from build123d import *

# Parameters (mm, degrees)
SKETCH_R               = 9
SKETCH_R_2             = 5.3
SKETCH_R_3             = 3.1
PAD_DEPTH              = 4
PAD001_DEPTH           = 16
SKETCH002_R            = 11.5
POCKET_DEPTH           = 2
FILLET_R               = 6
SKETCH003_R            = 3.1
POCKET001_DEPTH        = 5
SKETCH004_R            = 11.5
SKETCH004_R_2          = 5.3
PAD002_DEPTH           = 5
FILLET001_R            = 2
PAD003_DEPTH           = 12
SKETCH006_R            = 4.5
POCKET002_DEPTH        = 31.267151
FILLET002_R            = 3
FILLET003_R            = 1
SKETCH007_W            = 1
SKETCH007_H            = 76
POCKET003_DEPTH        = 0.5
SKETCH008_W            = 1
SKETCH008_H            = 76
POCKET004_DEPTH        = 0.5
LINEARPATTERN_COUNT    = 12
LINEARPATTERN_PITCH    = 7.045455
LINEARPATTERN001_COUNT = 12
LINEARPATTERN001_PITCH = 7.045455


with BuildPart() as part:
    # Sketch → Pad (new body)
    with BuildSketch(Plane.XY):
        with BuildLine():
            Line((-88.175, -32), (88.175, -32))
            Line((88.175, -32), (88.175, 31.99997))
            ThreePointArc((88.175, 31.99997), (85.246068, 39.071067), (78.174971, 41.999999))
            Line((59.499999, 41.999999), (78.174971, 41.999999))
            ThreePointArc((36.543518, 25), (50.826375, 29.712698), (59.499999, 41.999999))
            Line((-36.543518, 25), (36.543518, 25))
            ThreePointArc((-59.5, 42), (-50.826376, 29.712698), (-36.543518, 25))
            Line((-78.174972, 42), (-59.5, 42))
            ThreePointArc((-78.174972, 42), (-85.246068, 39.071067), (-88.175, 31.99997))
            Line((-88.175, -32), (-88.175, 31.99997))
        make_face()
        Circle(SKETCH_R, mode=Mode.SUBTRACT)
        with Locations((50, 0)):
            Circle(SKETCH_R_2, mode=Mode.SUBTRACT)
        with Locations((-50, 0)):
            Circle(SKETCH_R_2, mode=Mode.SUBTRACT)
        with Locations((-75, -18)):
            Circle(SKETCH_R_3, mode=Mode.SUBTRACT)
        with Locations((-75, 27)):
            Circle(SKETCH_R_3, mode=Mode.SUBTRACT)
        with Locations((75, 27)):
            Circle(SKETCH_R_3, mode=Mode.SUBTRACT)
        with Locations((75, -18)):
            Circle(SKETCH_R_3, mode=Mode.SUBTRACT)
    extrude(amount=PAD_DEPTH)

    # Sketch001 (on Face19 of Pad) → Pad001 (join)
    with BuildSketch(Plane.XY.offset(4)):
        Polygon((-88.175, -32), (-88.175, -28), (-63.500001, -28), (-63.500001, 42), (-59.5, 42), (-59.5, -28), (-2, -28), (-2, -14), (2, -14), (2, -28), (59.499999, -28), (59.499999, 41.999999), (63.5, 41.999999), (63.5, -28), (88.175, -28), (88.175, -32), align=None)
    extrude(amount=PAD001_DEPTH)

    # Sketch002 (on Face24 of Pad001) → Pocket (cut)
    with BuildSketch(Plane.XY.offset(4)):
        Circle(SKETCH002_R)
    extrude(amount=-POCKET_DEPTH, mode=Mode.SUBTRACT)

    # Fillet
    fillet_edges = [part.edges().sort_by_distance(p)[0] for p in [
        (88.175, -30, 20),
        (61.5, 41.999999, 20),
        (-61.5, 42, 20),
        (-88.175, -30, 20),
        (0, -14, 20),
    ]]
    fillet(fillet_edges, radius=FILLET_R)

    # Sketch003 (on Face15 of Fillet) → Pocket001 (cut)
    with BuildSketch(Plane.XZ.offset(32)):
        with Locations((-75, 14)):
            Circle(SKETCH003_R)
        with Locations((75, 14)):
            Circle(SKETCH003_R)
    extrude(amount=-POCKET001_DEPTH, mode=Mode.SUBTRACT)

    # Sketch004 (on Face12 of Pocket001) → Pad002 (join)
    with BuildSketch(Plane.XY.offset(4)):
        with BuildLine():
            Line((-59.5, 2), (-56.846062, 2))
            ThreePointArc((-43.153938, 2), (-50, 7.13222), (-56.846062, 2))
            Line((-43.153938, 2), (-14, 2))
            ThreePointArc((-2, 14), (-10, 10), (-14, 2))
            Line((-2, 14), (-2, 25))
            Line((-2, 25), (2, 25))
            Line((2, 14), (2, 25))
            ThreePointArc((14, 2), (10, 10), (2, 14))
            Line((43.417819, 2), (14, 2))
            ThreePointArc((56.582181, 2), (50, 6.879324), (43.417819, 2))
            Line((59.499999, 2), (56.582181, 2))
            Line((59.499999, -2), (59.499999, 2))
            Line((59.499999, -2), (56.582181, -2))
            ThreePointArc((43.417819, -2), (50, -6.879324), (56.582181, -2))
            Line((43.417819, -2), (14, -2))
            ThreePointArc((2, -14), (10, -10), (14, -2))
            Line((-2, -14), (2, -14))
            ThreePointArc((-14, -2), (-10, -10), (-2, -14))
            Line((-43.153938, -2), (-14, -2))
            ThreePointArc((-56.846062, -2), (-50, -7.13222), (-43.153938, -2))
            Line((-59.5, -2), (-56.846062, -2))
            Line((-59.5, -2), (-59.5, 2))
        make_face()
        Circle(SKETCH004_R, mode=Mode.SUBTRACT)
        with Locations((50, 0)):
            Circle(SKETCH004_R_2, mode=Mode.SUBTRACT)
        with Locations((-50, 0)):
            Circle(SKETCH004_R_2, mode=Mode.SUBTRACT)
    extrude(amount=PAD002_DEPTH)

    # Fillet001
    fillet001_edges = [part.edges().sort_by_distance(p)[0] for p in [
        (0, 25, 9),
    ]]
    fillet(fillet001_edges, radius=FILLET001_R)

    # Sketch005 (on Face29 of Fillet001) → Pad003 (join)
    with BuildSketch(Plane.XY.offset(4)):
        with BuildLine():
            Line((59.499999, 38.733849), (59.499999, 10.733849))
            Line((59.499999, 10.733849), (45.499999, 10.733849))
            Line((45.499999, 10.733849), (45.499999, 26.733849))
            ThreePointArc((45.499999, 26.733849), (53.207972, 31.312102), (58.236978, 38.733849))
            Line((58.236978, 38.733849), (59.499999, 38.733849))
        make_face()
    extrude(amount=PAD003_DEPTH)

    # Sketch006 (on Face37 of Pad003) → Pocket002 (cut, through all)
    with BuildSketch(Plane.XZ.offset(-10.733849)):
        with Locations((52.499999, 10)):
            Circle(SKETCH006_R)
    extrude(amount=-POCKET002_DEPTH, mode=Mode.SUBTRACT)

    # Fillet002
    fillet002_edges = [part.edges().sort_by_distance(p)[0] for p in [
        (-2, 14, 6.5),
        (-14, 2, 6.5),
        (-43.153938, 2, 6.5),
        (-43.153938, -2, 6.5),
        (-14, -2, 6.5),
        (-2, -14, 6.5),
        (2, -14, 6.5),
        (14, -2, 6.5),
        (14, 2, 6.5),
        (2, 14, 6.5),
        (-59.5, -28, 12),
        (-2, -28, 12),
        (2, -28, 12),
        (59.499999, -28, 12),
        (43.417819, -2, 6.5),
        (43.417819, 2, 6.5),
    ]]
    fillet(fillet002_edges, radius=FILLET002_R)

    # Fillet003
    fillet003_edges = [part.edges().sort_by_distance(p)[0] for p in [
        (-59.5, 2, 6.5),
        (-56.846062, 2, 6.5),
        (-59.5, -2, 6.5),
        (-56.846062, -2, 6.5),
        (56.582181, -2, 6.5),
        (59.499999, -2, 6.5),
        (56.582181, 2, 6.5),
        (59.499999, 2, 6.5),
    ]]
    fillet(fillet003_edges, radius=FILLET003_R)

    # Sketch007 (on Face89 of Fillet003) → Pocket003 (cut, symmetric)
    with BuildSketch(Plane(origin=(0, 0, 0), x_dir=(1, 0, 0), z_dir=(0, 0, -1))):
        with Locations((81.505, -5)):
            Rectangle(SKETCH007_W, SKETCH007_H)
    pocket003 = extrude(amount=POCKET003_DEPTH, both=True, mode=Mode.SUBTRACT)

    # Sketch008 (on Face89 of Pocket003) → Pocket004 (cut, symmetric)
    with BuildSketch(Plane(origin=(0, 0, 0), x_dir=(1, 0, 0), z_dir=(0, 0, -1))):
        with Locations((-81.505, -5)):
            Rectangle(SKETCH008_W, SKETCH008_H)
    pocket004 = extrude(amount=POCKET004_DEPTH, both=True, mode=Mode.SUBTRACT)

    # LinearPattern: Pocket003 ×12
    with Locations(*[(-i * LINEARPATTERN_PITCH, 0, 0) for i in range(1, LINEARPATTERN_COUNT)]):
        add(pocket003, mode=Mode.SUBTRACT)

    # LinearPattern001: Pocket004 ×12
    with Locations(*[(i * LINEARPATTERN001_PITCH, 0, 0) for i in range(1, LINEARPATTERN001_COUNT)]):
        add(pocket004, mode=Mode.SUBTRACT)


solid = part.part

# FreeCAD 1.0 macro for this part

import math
import FreeCAD as App
import Part
import Sketcher

V = App.Vector


def edges_at(feature, points):
    """Names of the edges that pass closest to the given points."""
    edges = feature.Shape.Edges
    near = lambda p: min(range(len(edges)), key=lambda i: edges[i].distToShape(Part.Vertex(*p))[0])
    return sorted({f"Edge{near(p) + 1}" for p in points})

doc = App.newDocument("Part")
body = doc.addObject("PartDesign::Body", "Body")

# Sketch on XY plane
sketch1 = doc.addObject("Sketcher::SketchObject", "Sketch")
body.addObject(sketch1)
sketch1.AttachmentSupport = (doc.XY_Plane, [""])
sketch1.MapMode = "FlatFace"
sketch1.addGeometry([
    Part.LineSegment(V(-88.2, -32, 0), V(88.2, -32, 0)),  # 0
    Part.LineSegment(V(88.2, -32, 0), V(88.2, 32, 0)),  # 1
    Part.ArcOfCircle(Part.Circle(V(78.2, 32, 0), V(0, 0, 1), 10), math.radians(0), math.radians(90)),  # 2
    Part.LineSegment(V(78.2, 42, 0), V(59.5, 42, 0)),  # 3
    Part.ArcOfCircle(Part.Circle(V(36.5, 49, 0), V(0, 0, 1), 24), math.radians(-90), math.radians(-17)),  # 4
    Part.LineSegment(V(36.5, 25, 0), V(-36.5, 25, 0)),  # 5
    Part.ArcOfCircle(Part.Circle(V(-36.5, 49, 0), V(0, 0, 1), 24), math.radians(-163), math.radians(-90)),  # 6
    Part.LineSegment(V(-59.5, 42, 0), V(-78.2, 42, 0)),  # 7
    Part.ArcOfCircle(Part.Circle(V(-78.2, 32, 0), V(0, 0, 1), 10), math.radians(90), math.radians(180)),  # 8
    Part.LineSegment(V(-88.2, 32, 0), V(-88.2, -32, 0)),  # 9
    Part.Circle(V(-75, -18, 0), V(0, 0, 1), 3.1),  # 10
    Part.Circle(V(-50, 0, 0), V(0, 0, 1), 5.3),  # 11
    Part.Circle(V(75, -18, 0), V(0, 0, 1), 3.1),  # 12
    Part.Circle(V(0, 0, 0), V(0, 0, 1), 9),  # 13
    Part.Circle(V(50, 0, 0), V(0, 0, 1), 5.3),  # 14
    Part.Circle(V(-75, 27, 0), V(0, 0, 1), 3.1),  # 15
    Part.Circle(V(75, 27, 0), V(0, 0, 1), 3.1),  # 16
], False)
sketch1.addConstraint([
    Sketcher.Constraint("Coincident", 0, 2, 1, 1),
    Sketcher.Constraint("Coincident", 1, 2, 2, 1),
    Sketcher.Constraint("Coincident", 2, 2, 3, 1),
    Sketcher.Constraint("Coincident", 3, 2, 4, 2),
    Sketcher.Constraint("Tangent", 4, 1, 5, 1),
    Sketcher.Constraint("Tangent", 5, 2, 6, 2),
    Sketcher.Constraint("Coincident", 6, 1, 7, 1),
    Sketcher.Constraint("Coincident", 7, 2, 8, 1),
    Sketcher.Constraint("Coincident", 8, 2, 9, 1),
    Sketcher.Constraint("Coincident", 9, 2, 0, 1),
    Sketcher.Constraint("Horizontal", 0),
    Sketcher.Constraint("Vertical", 1),
    Sketcher.Constraint("Horizontal", 3),
    Sketcher.Constraint("Horizontal", 5),
    Sketcher.Constraint("Horizontal", 7),
    Sketcher.Constraint("Vertical", 9),
    Sketcher.Constraint("Coincident", 13, 3, -1, 1),
    Sketcher.Constraint("Equal", 4, 6),
    Sketcher.Constraint("Equal", 2, 8),
    Sketcher.Constraint("Equal", 10, 12),
    Sketcher.Constraint("Equal", 11, 14),
    Sketcher.Constraint("Equal", 12, 15),
    Sketcher.Constraint("Equal", 15, 16),
    Sketcher.Constraint("Symmetric", 11, 3, 14, 3, -1, 1),
    Sketcher.Constraint("Symmetric", 2, 3, 8, 3, -2),
    Sketcher.Constraint("Symmetric", 10, 3, 12, 3, -2),
    Sketcher.Constraint("Symmetric", 15, 3, 16, 3, -2),
    Sketcher.Constraint("PointOnObject", 11, 3, -1),
    Sketcher.Constraint("Horizontal", 1, 2, 8, 2),
    Sketcher.Constraint("Vertical", 10, 3, 15, 3),
    Sketcher.Constraint("Equal", 3, 7),
    Sketcher.Constraint("Diameter", 13, 18.0),
    Sketcher.Constraint("Radius", 2, 9.999999),
    Sketcher.Constraint("Radius", 4, 24.0),
    Sketcher.Constraint("Diameter", 10, 6.2),
    Sketcher.Constraint("Diameter", 11, 10.6),
    Sketcher.Constraint("DistanceY", -1, 1, 2, 3, 32.0),
    Sketcher.Constraint("DistanceY", -1, 1, 4, 3, 49.0),
    Sketcher.Constraint("DistanceX", 10, 3, -1, 1, 75.0),
    Sketcher.Constraint("DistanceY", 10, 3, -1, 1, 18.0),
    Sketcher.Constraint("DistanceX", 11, 3, -1, 1, 50.0),
    Sketcher.Constraint("DistanceY", -1, 1, 15, 3, 27.0),
    Sketcher.Constraint("DistanceY", 0, 2, -1, 1, 32.0),
    Sketcher.Constraint("DistanceX", 0, 1, 0, 2, 176.35),
    Sketcher.Constraint("DistanceX", -1, 1, 3, 2, 59.499999),
    Sketcher.Constraint("DistanceX", 6, 1, -1, 1, 59.5),
    Sketcher.Constraint("DistanceX", 3, 2, 3, 1, 18.674972),
    Sketcher.Constraint("DistanceY", 1, 1, 1, 2, 63.99997),
])
pad1 = doc.addObject("PartDesign::Pad", "Pad")
body.addObject(pad1)
pad1.Profile = sketch1
pad1.Length = 4

# Sketch on XY plane
sketch2 = doc.addObject("Sketcher::SketchObject", "Sketch001")
body.addObject(sketch2)
sketch2.AttachmentSupport = (doc.XY_Plane, [""])
sketch2.MapMode = "FlatFace"
sketch2.AttachmentOffset = App.Placement(V(0, 0, 4), App.Rotation())
sketch2.addGeometry([
    Part.LineSegment(V(-88.2, -28, 0), V(-88.2, -32, 0)),  # 0
    Part.LineSegment(V(-88.2, -32, 0), V(88.2, -32, 0)),  # 1
    Part.LineSegment(V(88.2, -32, 0), V(88.2, -28, 0)),  # 2
    Part.LineSegment(V(88.2, -28, 0), V(63.5, -28, 0)),  # 3
    Part.LineSegment(V(63.5, -28, 0), V(63.5, 42, 0)),  # 4
    Part.LineSegment(V(63.5, 42, 0), V(59.5, 42, 0)),  # 5
    Part.LineSegment(V(59.5, 42, 0), V(59.5, -28, 0)),  # 6
    Part.LineSegment(V(59.5, -28, 0), V(2, -28, 0)),  # 7
    Part.LineSegment(V(2, -28, 0), V(2, -14, 0)),  # 8
    Part.LineSegment(V(2, -14, 0), V(-2, -14, 0)),  # 9
    Part.LineSegment(V(-2, -14, 0), V(-2, -28, 0)),  # 10
    Part.LineSegment(V(-2, -28, 0), V(-59.5, -28, 0)),  # 11
    Part.LineSegment(V(-59.5, -28, 0), V(-59.5, 42, 0)),  # 12
    Part.LineSegment(V(-59.5, 42, 0), V(-63.5, 42, 0)),  # 13
    Part.LineSegment(V(-63.5, 42, 0), V(-63.5, -28, 0)),  # 14
    Part.LineSegment(V(-63.5, -28, 0), V(-88.2, -28, 0)),  # 15
], False)
sketch2.addConstraint([
    Sketcher.Constraint("Coincident", 0, 2, 1, 1),
    Sketcher.Constraint("Coincident", 1, 2, 2, 1),
    Sketcher.Constraint("Coincident", 2, 2, 3, 1),
    Sketcher.Constraint("Coincident", 3, 2, 4, 1),
    Sketcher.Constraint("Coincident", 4, 2, 5, 1),
    Sketcher.Constraint("Coincident", 5, 2, 6, 1),
    Sketcher.Constraint("Coincident", 6, 2, 7, 1),
    Sketcher.Constraint("Coincident", 7, 2, 8, 1),
    Sketcher.Constraint("Coincident", 8, 2, 9, 1),
    Sketcher.Constraint("Coincident", 9, 2, 10, 1),
    Sketcher.Constraint("Coincident", 10, 2, 11, 1),
    Sketcher.Constraint("Coincident", 11, 2, 12, 1),
    Sketcher.Constraint("Coincident", 12, 2, 13, 1),
    Sketcher.Constraint("Coincident", 13, 2, 14, 1),
    Sketcher.Constraint("Coincident", 14, 2, 15, 1),
    Sketcher.Constraint("Coincident", 15, 2, 0, 1),
    Sketcher.Constraint("Vertical", 0),
    Sketcher.Constraint("Horizontal", 1),
    Sketcher.Constraint("Vertical", 2),
    Sketcher.Constraint("Horizontal", 3),
    Sketcher.Constraint("Vertical", 4),
    Sketcher.Constraint("Horizontal", 5),
    Sketcher.Constraint("Vertical", 6),
    Sketcher.Constraint("Horizontal", 7),
    Sketcher.Constraint("Vertical", 8),
    Sketcher.Constraint("Horizontal", 9),
    Sketcher.Constraint("Vertical", 10),
    Sketcher.Constraint("Horizontal", 11),
    Sketcher.Constraint("Vertical", 12),
    Sketcher.Constraint("Horizontal", 13),
    Sketcher.Constraint("Vertical", 14),
    Sketcher.Constraint("Horizontal", 15),
    Sketcher.Constraint("Symmetric", 7, 2, 10, 2, -2),
    Sketcher.Constraint("Symmetric", 5, 2, 12, 2, -2),
    Sketcher.Constraint("Symmetric", 3, 2, 14, 2, -2),
    Sketcher.Constraint("Horizontal", 3, 2, 6, 2),
    Sketcher.Constraint("Equal", 5, 9),
    Sketcher.Constraint("Equal", 3, 15),
    Sketcher.Constraint("Equal", 13, 0),
    Sketcher.Constraint("DistanceX", 5, 2, 5, 1, 4.000001),
    Sketcher.Constraint("DistanceY", 4, 1, 4, 2, 69.999999),
    Sketcher.Constraint("DistanceY", 8, 1, 8, 2, 14.0),
    Sketcher.Constraint("DistanceX", 7, 2, 7, 1, 57.499999),
    Sketcher.Constraint("DistanceY", 0, 2, -1, 1, 32.0),
    Sketcher.Constraint("DistanceX", 1, 1, 1, 2, 176.35),
])
pad2 = doc.addObject("PartDesign::Pad", "Pad001")
body.addObject(pad2)
pad2.Profile = sketch2
pad2.Length = 16

# Sketch on XY plane
sketch3 = doc.addObject("Sketcher::SketchObject", "Sketch002")
body.addObject(sketch3)
sketch3.AttachmentSupport = (doc.XY_Plane, [""])
sketch3.MapMode = "FlatFace"
sketch3.AttachmentOffset = App.Placement(V(0, 0, 4), App.Rotation())
sketch3.addGeometry(Part.Circle(V(0, 0, 0), V(0, 0, 1), 12), False)
sketch3.addConstraint([
    Sketcher.Constraint("Coincident", 0, 3, -1, 1),
    Sketcher.Constraint("Diameter", 0, 23.0),
])
pocket1 = doc.addObject("PartDesign::Pocket", "Pocket")
body.addObject(pocket1)
pocket1.Profile = sketch3
pocket1.Length = 2
doc.recompute()

fillet = doc.addObject("PartDesign::Fillet", "Fillet")
body.addObject(fillet)
fillet.Base = (pocket1, edges_at(pocket1, [
    (88.175, -30, 20),
    (61.5, 42, 20),
    (-61.5, 42, 20),
    (-88.175, -30, 20),
    (0, -14, 20),
]))
fillet.Radius = 6

# Sketch on XZ plane
sketch4 = doc.addObject("Sketcher::SketchObject", "Sketch003")
body.addObject(sketch4)
sketch4.AttachmentSupport = (doc.XZ_Plane, [""])
sketch4.MapMode = "FlatFace"
sketch4.AttachmentOffset = App.Placement(V(0, 0, 32), App.Rotation())
sketch4.addGeometry([
    Part.Circle(V(-75, 14, 0), V(0, 0, 1), 3.1),
    Part.Circle(V(75, 14, 0), V(0, 0, 1), 3.1),
], False)
sketch4.addConstraint([
    Sketcher.Constraint("Equal", 0, 1),
    Sketcher.Constraint("Symmetric", 0, 3, 1, 3, -2),
    Sketcher.Constraint("Diameter", 0, 6.2),
    Sketcher.Constraint("DistanceX", 0, 3, -1, 1, 75.0),
    Sketcher.Constraint("DistanceY", -1, 1, 0, 3, 14.0),
])
pocket2 = doc.addObject("PartDesign::Pocket", "Pocket001")
body.addObject(pocket2)
pocket2.Profile = sketch4
pocket2.Length = 5

# Sketch on XY plane
sketch5 = doc.addObject("Sketcher::SketchObject", "Sketch004")
body.addObject(sketch5)
sketch5.AttachmentSupport = (doc.XY_Plane, [""])
sketch5.MapMode = "FlatFace"
sketch5.AttachmentOffset = App.Placement(V(0, 0, 4), App.Rotation())
sketch5.addGeometry([
    Part.LineSegment(V(-56.8, 2, 0), V(-59.5, 2, 0)),  # 0
    Part.LineSegment(V(-59.5, 2, 0), V(-59.5, -2, 0)),  # 1
    Part.LineSegment(V(-59.5, -2, 0), V(-56.8, -2, 0)),  # 2
    Part.ArcOfCircle(Part.Circle(V(-50, 0, 0), V(0, 0, 1), 7.1), math.radians(-164), math.radians(-16)),  # 3
    Part.LineSegment(V(-43.2, -2, 0), V(-14, -2, 0)),  # 4
    Part.ArcOfCircle(Part.Circle(V(0, 0, 0), V(0, 0, 1), 14.1), math.radians(-172), math.radians(-98)),  # 5
    Part.LineSegment(V(-2, -14, 0), V(2, -14, 0)),  # 6
    Part.ArcOfCircle(Part.Circle(V(0, 0, 0), V(0, 0, 1), 14.1), math.radians(-82), math.radians(-8)),  # 7
    Part.LineSegment(V(14, -2, 0), V(43.4, -2, 0)),  # 8
    Part.ArcOfCircle(Part.Circle(V(50, 0, 0), V(0, 0, 1), 6.9), math.radians(-163), math.radians(-17)),  # 9
    Part.LineSegment(V(56.6, -2, 0), V(59.5, -2, 0)),  # 10
    Part.LineSegment(V(59.5, -2, 0), V(59.5, 2, 0)),  # 11
    Part.LineSegment(V(59.5, 2, 0), V(56.6, 2, 0)),  # 12
    Part.ArcOfCircle(Part.Circle(V(50, 0, 0), V(0, 0, 1), 6.9), math.radians(17), math.radians(163)),  # 13
    Part.LineSegment(V(43.4, 2, 0), V(14, 2, 0)),  # 14
    Part.ArcOfCircle(Part.Circle(V(0, 0, 0), V(0, 0, 1), 14.1), math.radians(8), math.radians(82)),  # 15
    Part.LineSegment(V(2, 14, 0), V(2, 25, 0)),  # 16
    Part.LineSegment(V(2, 25, 0), V(-2, 25, 0)),  # 17
    Part.LineSegment(V(-2, 25, 0), V(-2, 14, 0)),  # 18
    Part.ArcOfCircle(Part.Circle(V(0, 0, 0), V(0, 0, 1), 14.1), math.radians(98), math.radians(172)),  # 19
    Part.LineSegment(V(-14, 2, 0), V(-43.2, 2, 0)),  # 20
    Part.ArcOfCircle(Part.Circle(V(-50, 0, 0), V(0, 0, 1), 7.1), math.radians(16), math.radians(164)),  # 21
    Part.Circle(V(50, 0, 0), V(0, 0, 1), 5.3),  # 22
    Part.Circle(V(0, 0, 0), V(0, 0, 1), 11.5),  # 23
    Part.Circle(V(-50, 0, 0), V(0, 0, 1), 5.3),  # 24
], False)
sketch5.addConstraint([
    Sketcher.Constraint("Coincident", 0, 2, 1, 1),
    Sketcher.Constraint("Coincident", 1, 2, 2, 1),
    Sketcher.Constraint("Coincident", 2, 2, 3, 1),
    Sketcher.Constraint("Coincident", 3, 2, 4, 1),
    Sketcher.Constraint("Coincident", 4, 2, 5, 1),
    Sketcher.Constraint("Coincident", 5, 2, 6, 1),
    Sketcher.Constraint("Coincident", 6, 2, 7, 1),
    Sketcher.Constraint("Coincident", 7, 2, 8, 1),
    Sketcher.Constraint("Coincident", 8, 2, 9, 1),
    Sketcher.Constraint("Coincident", 9, 2, 10, 1),
    Sketcher.Constraint("Coincident", 10, 2, 11, 1),
    Sketcher.Constraint("Coincident", 11, 2, 12, 1),
    Sketcher.Constraint("Coincident", 12, 2, 13, 1),
    Sketcher.Constraint("Coincident", 13, 2, 14, 1),
    Sketcher.Constraint("Coincident", 14, 2, 15, 1),
    Sketcher.Constraint("Coincident", 15, 2, 16, 1),
    Sketcher.Constraint("Coincident", 16, 2, 17, 1),
    Sketcher.Constraint("Coincident", 17, 2, 18, 1),
    Sketcher.Constraint("Coincident", 18, 2, 19, 1),
    Sketcher.Constraint("Coincident", 19, 2, 20, 1),
    Sketcher.Constraint("Coincident", 20, 2, 21, 1),
    Sketcher.Constraint("Coincident", 21, 2, 0, 1),
    Sketcher.Constraint("Horizontal", 0),
    Sketcher.Constraint("Vertical", 1),
    Sketcher.Constraint("Horizontal", 2),
    Sketcher.Constraint("Horizontal", 4),
    Sketcher.Constraint("Horizontal", 6),
    Sketcher.Constraint("Horizontal", 8),
    Sketcher.Constraint("Horizontal", 10),
    Sketcher.Constraint("Vertical", 11),
    Sketcher.Constraint("Horizontal", 12),
    Sketcher.Constraint("Horizontal", 14),
    Sketcher.Constraint("Vertical", 16),
    Sketcher.Constraint("Horizontal", 17),
    Sketcher.Constraint("Vertical", 18),
    Sketcher.Constraint("Horizontal", 20),
    Sketcher.Constraint("Coincident", 5, 3, -1, 1),
    Sketcher.Constraint("Coincident", 7, 3, -1, 1),
    Sketcher.Constraint("Coincident", 15, 3, -1, 1),
    Sketcher.Constraint("Coincident", 19, 3, -1, 1),
    Sketcher.Constraint("Coincident", 23, 3, -1, 1),
    Sketcher.Constraint("Coincident", 13, 3, 9, 3),
    Sketcher.Constraint("Coincident", 21, 3, 3, 3),
    Sketcher.Constraint("Coincident", 22, 3, 9, 3),
    Sketcher.Constraint("Coincident", 24, 3, 3, 3),
    Sketcher.Constraint("Equal", 5, 7),
    Sketcher.Constraint("Equal", 9, 13),
    Sketcher.Constraint("Equal", 7, 15),
    Sketcher.Constraint("Equal", 15, 19),
    Sketcher.Constraint("Equal", 3, 21),
    Sketcher.Constraint("Equal", 22, 24),
    Sketcher.Constraint("Symmetric", 3, 3, 9, 3, -1, 1),
    Sketcher.Constraint("Symmetric", 0, 2, 10, 2, -1, 1),
    Sketcher.Constraint("Symmetric", 9, 2, 12, 2, -1),
    Sketcher.Constraint("Horizontal", 2, 2, 3, 2),
    Sketcher.Constraint("Horizontal", 4, 2, 7, 2),
    Sketcher.Constraint("Horizontal", 8, 2, 9, 2),
    Sketcher.Constraint("Horizontal", 12, 2, 13, 2),
    Sketcher.Constraint("Horizontal", 15, 2, 18, 2),
    Sketcher.Constraint("Horizontal", 14, 2, 19, 2),
    Sketcher.Constraint("Vertical", 6, 2, 15, 2),
    Sketcher.Constraint("Equal", 17, 1),
    Sketcher.Constraint("Diameter", 23, 23.0),
    Sketcher.Constraint("Diameter", 22, 10.6),
    Sketcher.Constraint("DistanceX", 6, 1, 6, 2, 4.0),
    Sketcher.Constraint("DistanceY", 16, 1, 16, 2, 11.0),
    Sketcher.Constraint("DistanceX", 3, 3, -1, 1, 50.0),
    Sketcher.Constraint("DistanceX", 4, 2, -1, 1, 14.0),
    Sketcher.Constraint("DistanceX", 0, 2, -1, 1, 59.5),
    Sketcher.Constraint("Radius", 3, 7.13222),
    Sketcher.Constraint("Radius", 9, 6.879325),
])
pad3 = doc.addObject("PartDesign::Pad", "Pad002")
body.addObject(pad3)
pad3.Profile = sketch5
pad3.Length = 5
doc.recompute()

fillet2 = doc.addObject("PartDesign::Fillet", "Fillet001")
body.addObject(fillet2)
fillet2.Base = (pad3, edges_at(pad3, [(0, 25, 9)]))
fillet2.Radius = 2

# Sketch on XY plane
sketch6 = doc.addObject("Sketcher::SketchObject", "Sketch005")
body.addObject(sketch6)
sketch6.AttachmentSupport = (doc.XY_Plane, [""])
sketch6.MapMode = "FlatFace"
sketch6.AttachmentOffset = App.Placement(V(0, 0, 4), App.Rotation())
sketch6.addGeometry([
    Part.LineSegment(V(59.5, 10.7, 0), V(59.5, 38.7, 0)),  # 0
    Part.LineSegment(V(59.5, 38.7, 0), V(58.2, 38.7, 0)),  # 1
    Part.ArcOfCircle(Part.Circle(V(39.1, 46.3, 0), V(0, 0, 1), 20.6), math.radians(-72), math.radians(-22)),  # 2
    Part.LineSegment(V(45.5, 26.7, 0), V(45.5, 10.7, 0)),  # 3
    Part.LineSegment(V(45.5, 10.7, 0), V(59.5, 10.7, 0)),  # 4
], False)
sketch6.addConstraint([
    Sketcher.Constraint("Coincident", 0, 2, 1, 1),
    Sketcher.Constraint("Coincident", 1, 2, 2, 2),
    Sketcher.Constraint("Coincident", 2, 1, 3, 1),
    Sketcher.Constraint("Coincident", 3, 2, 4, 1),
    Sketcher.Constraint("Coincident", 4, 2, 0, 1),
    Sketcher.Constraint("Vertical", 0),
    Sketcher.Constraint("Horizontal", 1),
    Sketcher.Constraint("Vertical", 3),
    Sketcher.Constraint("Horizontal", 4),
    Sketcher.Constraint("DistanceX", 4, 1, 4, 2, 14.0),
    Sketcher.Constraint("DistanceY", 0, 1, 0, 2, 28.0),
    Sketcher.Constraint("DistanceY", 3, 2, 3, 1, 16.0),
    Sketcher.Constraint("DistanceX", -1, 1, 0, 2, 59.499999),
    Sketcher.Constraint("Radius", 2, 20.573167),
    Sketcher.Constraint("DistanceX", 1, 2, 1, 1, 1.263021),
    Sketcher.Constraint("DistanceY", -1, 1, 2, 3, 46.286289),
])
pad4 = doc.addObject("PartDesign::Pad", "Pad003")
body.addObject(pad4)
pad4.Profile = sketch6
pad4.Length = 12

# Sketch on XZ plane
sketch7 = doc.addObject("Sketcher::SketchObject", "Sketch006")
body.addObject(sketch7)
sketch7.AttachmentSupport = (doc.XZ_Plane, [""])
sketch7.MapMode = "FlatFace"
sketch7.AttachmentOffset = App.Placement(V(0, 0, -10.733849), App.Rotation())
sketch7.addGeometry(Part.Circle(V(52.5, 10, 0), V(0, 0, 1), 4.5), False)
sketch7.addConstraint([
    Sketcher.Constraint("Diameter", 0, 9.0),
    Sketcher.Constraint("DistanceY", -1, 1, 0, 3, 10.0),
    Sketcher.Constraint("DistanceX", -1, 1, 0, 3, 52.499999),
])
pocket3 = doc.addObject("PartDesign::Pocket", "Pocket002")
body.addObject(pocket3)
pocket3.Profile = sketch7
pocket3.Type = "ThroughAll"
doc.recompute()

fillet3 = doc.addObject("PartDesign::Fillet", "Fillet002")
body.addObject(fillet3)
fillet3.Base = (pocket3, edges_at(pocket3, [
    (-2, 14, 6.5),
    (-14, 2, 6.5),
    (-43.154, 2, 6.5),
    (-43.154, -2, 6.5),
    (-14, -2, 6.5),
    (-2, -14, 6.5),
    (2, -14, 6.5),
    (14, -2, 6.5),
    (14, 2, 6.5),
    (2, 14, 6.5),
    (-59.5, -28, 12),
    (-2, -28, 12),
    (2, -28, 12),
    (59.5, -28, 12),
    (43.418, -2, 6.5),
    (43.418, 2, 6.5),
]))
fillet3.Radius = 3
doc.recompute()

fillet4 = doc.addObject("PartDesign::Fillet", "Fillet003")
body.addObject(fillet4)
fillet4.Base = (fillet3, edges_at(fillet3, [
    (-59.5, 2, 6.5),
    (-56.846, 2, 6.5),
    (-59.5, -2, 6.5),
    (-56.846, -2, 6.5),
    (56.582, -2, 6.5),
    (59.5, -2, 6.5),
    (56.582, 2, 6.5),
    (59.5, 2, 6.5),
]))
fillet4.Radius = 1

# Sketch on XY plane
sketch8 = doc.addObject("Sketcher::SketchObject", "Sketch007")
body.addObject(sketch8)
sketch8.AttachmentSupport = (doc.XY_Plane, [""])
sketch8.MapMode = "FlatFace"
sketch8.addGeometry([
    Part.LineSegment(V(81, -33, 0), V(81, 43, 0)),
    Part.LineSegment(V(81, 43, 0), V(82, 43, 0)),
    Part.LineSegment(V(82, 43, 0), V(82, -33, 0)),
    Part.LineSegment(V(82, -33, 0), V(81, -33, 0)),
], False)
sketch8.addConstraint([
    Sketcher.Constraint("Coincident", 0, 2, 1, 1),
    Sketcher.Constraint("Coincident", 1, 2, 2, 1),
    Sketcher.Constraint("Coincident", 2, 2, 3, 1),
    Sketcher.Constraint("Coincident", 3, 2, 0, 1),
    Sketcher.Constraint("Vertical", 0),
    Sketcher.Constraint("Horizontal", 1),
    Sketcher.Constraint("Vertical", 2),
    Sketcher.Constraint("Horizontal", 3),
    Sketcher.Constraint("DistanceX", 1, 1, 1, 2, 1.0),
    Sketcher.Constraint("DistanceY", 0, 1, 0, 2, 76.0),
    Sketcher.Constraint("DistanceY", -1, 1, 0, 2, 43.0),
    Sketcher.Constraint("DistanceX", -1, 1, 0, 2, 81.005),
])
pocket4 = doc.addObject("PartDesign::Pocket", "Pocket003")
body.addObject(pocket4)
pocket4.Profile = sketch8
pocket4.Length = 1
pocket4.Midplane = True

# Sketch on XY plane
sketch9 = doc.addObject("Sketcher::SketchObject", "Sketch008")
body.addObject(sketch9)
sketch9.AttachmentSupport = (doc.XY_Plane, [""])
sketch9.MapMode = "FlatFace"
sketch9.addGeometry([
    Part.LineSegment(V(-82, -33, 0), V(-82, 43, 0)),
    Part.LineSegment(V(-82, 43, 0), V(-81, 43, 0)),
    Part.LineSegment(V(-81, 43, 0), V(-81, -33, 0)),
    Part.LineSegment(V(-81, -33, 0), V(-82, -33, 0)),
], False)
sketch9.addConstraint([
    Sketcher.Constraint("Coincident", 0, 2, 1, 1),
    Sketcher.Constraint("Coincident", 1, 2, 2, 1),
    Sketcher.Constraint("Coincident", 2, 2, 3, 1),
    Sketcher.Constraint("Coincident", 3, 2, 0, 1),
    Sketcher.Constraint("Vertical", 0),
    Sketcher.Constraint("Horizontal", 1),
    Sketcher.Constraint("Vertical", 2),
    Sketcher.Constraint("Horizontal", 3),
    Sketcher.Constraint("DistanceX", 1, 1, 1, 2, 1.0),
    Sketcher.Constraint("DistanceY", 0, 1, 0, 2, 76.0),
    Sketcher.Constraint("DistanceY", -1, 1, 0, 2, 43.0),
    Sketcher.Constraint("DistanceX", 0, 2, -1, 1, 82.005),
])
pocket5 = doc.addObject("PartDesign::Pocket", "Pocket004")
body.addObject(pocket5)
pocket5.Profile = sketch9
pocket5.Length = 1
pocket5.Midplane = True
doc.recompute()

linearpattern = doc.addObject("PartDesign::LinearPattern", "LinearPattern")
body.addObject(linearpattern)
linearpattern.Originals = [pocket4]
linearpattern.Direction = (doc.X_Axis, [""])
linearpattern.Mode = "offset"
linearpattern.Offset = 7.045455
linearpattern.Occurrences = 12
linearpattern.Reversed = True
body.Tip = linearpattern
doc.recompute()

linearpattern2 = doc.addObject("PartDesign::LinearPattern", "LinearPattern001")
body.addObject(linearpattern2)
linearpattern2.Originals = [pocket5]
linearpattern2.Direction = (doc.X_Axis, [""])
linearpattern2.Mode = "offset"
linearpattern2.Offset = 7.045455
linearpattern2.Occurrences = 12
body.Tip = linearpattern2

doc.recompute()
